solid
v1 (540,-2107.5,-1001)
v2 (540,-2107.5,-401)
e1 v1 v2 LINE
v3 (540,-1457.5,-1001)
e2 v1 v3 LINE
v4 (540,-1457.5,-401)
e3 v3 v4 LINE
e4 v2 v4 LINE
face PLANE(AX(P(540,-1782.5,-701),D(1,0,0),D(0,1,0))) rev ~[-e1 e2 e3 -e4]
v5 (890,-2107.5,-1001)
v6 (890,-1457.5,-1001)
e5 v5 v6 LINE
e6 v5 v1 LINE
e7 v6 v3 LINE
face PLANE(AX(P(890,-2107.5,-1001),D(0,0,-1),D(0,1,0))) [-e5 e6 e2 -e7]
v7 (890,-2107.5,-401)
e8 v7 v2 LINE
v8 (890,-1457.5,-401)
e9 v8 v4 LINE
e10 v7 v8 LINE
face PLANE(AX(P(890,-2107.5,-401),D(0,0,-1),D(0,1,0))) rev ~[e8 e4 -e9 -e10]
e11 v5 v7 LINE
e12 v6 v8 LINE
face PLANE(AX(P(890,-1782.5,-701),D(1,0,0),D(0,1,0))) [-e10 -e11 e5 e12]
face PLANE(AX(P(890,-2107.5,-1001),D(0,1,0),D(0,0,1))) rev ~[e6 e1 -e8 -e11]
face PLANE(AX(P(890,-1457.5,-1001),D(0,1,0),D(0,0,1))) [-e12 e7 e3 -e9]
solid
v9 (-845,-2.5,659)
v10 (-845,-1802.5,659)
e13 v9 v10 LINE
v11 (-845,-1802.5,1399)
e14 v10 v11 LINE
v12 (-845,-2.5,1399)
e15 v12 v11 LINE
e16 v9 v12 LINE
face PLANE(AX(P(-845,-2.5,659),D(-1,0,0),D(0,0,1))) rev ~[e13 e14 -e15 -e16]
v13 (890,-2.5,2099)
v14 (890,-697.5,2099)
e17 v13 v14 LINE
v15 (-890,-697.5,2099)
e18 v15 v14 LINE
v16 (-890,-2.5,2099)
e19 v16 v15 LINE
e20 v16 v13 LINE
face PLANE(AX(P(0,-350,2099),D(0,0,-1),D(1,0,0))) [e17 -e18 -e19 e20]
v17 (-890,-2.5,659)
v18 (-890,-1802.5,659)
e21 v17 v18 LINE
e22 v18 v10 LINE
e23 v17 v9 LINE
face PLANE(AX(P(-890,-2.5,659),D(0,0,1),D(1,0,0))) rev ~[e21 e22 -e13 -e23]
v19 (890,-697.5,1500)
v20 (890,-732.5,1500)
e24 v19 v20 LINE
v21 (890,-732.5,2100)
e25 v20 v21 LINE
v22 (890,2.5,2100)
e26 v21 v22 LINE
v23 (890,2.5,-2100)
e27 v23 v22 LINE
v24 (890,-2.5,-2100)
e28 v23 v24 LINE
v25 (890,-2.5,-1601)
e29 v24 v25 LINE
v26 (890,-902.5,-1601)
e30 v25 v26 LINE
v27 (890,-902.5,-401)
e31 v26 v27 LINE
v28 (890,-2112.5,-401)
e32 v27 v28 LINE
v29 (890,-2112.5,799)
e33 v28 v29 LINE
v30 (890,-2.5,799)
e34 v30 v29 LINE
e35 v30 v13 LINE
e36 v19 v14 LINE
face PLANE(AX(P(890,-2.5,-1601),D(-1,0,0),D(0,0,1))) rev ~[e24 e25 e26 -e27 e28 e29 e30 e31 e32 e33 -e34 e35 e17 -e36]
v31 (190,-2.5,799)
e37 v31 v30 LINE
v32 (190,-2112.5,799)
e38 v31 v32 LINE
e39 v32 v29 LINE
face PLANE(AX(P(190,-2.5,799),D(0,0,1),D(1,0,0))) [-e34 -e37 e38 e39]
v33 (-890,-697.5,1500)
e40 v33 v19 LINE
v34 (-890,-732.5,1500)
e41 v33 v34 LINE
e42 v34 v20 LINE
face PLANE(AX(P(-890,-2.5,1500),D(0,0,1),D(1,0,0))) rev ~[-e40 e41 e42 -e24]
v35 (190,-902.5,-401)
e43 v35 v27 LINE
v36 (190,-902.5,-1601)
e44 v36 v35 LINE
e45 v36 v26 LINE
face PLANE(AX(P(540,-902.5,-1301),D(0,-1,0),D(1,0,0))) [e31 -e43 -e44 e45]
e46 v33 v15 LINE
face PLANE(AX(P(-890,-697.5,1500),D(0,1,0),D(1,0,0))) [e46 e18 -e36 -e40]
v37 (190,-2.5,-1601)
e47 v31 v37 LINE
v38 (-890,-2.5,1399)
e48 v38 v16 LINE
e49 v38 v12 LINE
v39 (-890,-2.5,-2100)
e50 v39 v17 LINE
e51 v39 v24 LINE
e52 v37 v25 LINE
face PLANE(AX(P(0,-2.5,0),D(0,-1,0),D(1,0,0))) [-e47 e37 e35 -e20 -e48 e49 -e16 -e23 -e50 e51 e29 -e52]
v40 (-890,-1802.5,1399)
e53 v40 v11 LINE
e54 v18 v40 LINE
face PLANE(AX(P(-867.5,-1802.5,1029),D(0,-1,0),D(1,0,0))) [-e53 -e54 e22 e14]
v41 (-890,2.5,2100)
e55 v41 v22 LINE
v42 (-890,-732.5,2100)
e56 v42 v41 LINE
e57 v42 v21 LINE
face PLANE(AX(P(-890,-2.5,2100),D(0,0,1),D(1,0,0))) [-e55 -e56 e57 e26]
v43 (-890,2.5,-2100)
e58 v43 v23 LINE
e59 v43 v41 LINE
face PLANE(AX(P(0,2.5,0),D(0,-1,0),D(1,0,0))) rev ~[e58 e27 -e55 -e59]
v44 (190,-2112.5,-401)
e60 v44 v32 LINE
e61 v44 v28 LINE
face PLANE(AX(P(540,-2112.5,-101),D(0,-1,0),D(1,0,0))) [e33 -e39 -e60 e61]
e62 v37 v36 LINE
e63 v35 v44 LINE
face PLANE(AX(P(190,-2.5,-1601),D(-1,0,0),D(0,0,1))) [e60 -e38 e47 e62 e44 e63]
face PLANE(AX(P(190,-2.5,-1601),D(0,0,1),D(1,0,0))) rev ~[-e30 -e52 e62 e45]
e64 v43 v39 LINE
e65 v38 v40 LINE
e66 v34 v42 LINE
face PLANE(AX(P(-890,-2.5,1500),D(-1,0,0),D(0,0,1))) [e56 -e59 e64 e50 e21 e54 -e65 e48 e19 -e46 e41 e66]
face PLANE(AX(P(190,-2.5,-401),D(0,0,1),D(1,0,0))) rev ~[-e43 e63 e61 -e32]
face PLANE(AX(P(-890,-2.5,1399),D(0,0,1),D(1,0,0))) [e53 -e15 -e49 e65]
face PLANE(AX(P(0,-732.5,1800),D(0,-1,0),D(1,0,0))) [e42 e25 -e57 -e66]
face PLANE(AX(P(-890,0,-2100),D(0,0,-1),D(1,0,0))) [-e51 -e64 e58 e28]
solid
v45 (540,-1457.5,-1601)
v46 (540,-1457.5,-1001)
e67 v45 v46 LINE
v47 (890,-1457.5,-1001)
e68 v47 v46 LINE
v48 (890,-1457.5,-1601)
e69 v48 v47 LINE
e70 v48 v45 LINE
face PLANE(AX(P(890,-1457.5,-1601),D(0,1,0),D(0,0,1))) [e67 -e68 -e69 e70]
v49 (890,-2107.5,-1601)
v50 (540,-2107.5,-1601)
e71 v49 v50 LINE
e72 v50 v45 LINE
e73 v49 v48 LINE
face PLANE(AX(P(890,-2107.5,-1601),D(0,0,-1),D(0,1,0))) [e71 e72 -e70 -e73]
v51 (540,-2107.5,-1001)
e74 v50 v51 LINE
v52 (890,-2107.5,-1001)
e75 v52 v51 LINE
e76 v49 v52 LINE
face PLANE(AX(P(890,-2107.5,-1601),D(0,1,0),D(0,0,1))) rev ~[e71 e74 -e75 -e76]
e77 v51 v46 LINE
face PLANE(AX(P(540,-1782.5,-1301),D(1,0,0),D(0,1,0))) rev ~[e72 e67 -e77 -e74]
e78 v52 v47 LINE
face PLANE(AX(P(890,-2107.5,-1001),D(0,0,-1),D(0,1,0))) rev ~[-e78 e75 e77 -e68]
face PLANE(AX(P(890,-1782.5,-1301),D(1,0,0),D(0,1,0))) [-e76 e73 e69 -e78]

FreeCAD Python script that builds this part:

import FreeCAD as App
import Part
import Sketcher
from FreeCAD import Vector
Q = App.Units.Quantity

doc = App.newDocument("Part")
body = doc.addObject("PartDesign::Body", "Body")

# Sketch on XZ plane
sketch1 = doc.addObject("Sketcher::SketchObject", "Sketch")
body.addObject(sketch1)
sketch1.AttachmentSupport = (doc.XZ_Plane, [""])
sketch1.MapMode = "FlatFace"
sketch1.addGeometry([
    Part.LineSegment(Vector(-890, 2100, 0), Vector(-890, -2100, 0)),
    Part.LineSegment(Vector(-890, -2100, 0), Vector(890, -2100, 0)),
    Part.LineSegment(Vector(890, -2100, 0), Vector(890, 2100, 0)),
    Part.LineSegment(Vector(890, 2100, 0), Vector(-890, 2100, 0)),
], False)
sketch1.addConstraint([
    Sketcher.Constraint("Coincident", 0, 2, 1, 1),
    Sketcher.Constraint("Coincident", 1, 2, 2, 1),
    Sketcher.Constraint("Coincident", 2, 2, 3, 1),
    Sketcher.Constraint("Coincident", 3, 2, 0, 1),
    Sketcher.Constraint("Vertical", 0),
    Sketcher.Constraint("Horizontal", 1),
    Sketcher.Constraint("Vertical", 2),
    Sketcher.Constraint("Horizontal", 3),
    Sketcher.Constraint("Symmetric", 0, 2, 2, 2, -1, 1),
    Sketcher.Constraint("DistanceX", 1, 1, 1, 2, Q("1780 mm")),
    Sketcher.Constraint("DistanceY", 0, 2, 0, 1, Q("4200 mm")),
])
pad1 = doc.addObject("PartDesign::Pad", "Pad")
body.addObject(pad1)
pad1.Profile = sketch1
pad1.Length = 5
pad1.Midplane = True

# Sketch on XZ plane
sketch2 = doc.addObject("Sketcher::SketchObject", "Sketch001")
body.addObject(sketch2)
sketch2.AttachmentSupport = (doc.XZ_Plane, [""])
sketch2.MapMode = "FlatFace"
sketch2.AttachmentOffset = App.Placement(Vector(0, 0, 2.5), App.Rotation())
sketch2.addGeometry([
    Part.LineSegment(Vector(-890, 2100, 0), Vector(-890, 1500, 0)),
    Part.LineSegment(Vector(-890, 1500, 0), Vector(890, 1500, 0)),
    Part.LineSegment(Vector(890, 1500, 0), Vector(890, 2100, 0)),
    Part.LineSegment(Vector(890, 2100, 0), Vector(-890, 2100, 0)),
], False)
sketch2.addConstraint([
    Sketcher.Constraint("Coincident", 0, 2, 1, 1),
    Sketcher.Constraint("Coincident", 1, 2, 2, 1),
    Sketcher.Constraint("Coincident", 2, 2, 3, 1),
    Sketcher.Constraint("Coincident", 3, 2, 0, 1),
    Sketcher.Constraint("Vertical", 0),
    Sketcher.Constraint("Horizontal", 1),
    Sketcher.Constraint("Vertical", 2),
    Sketcher.Constraint("Horizontal", 3),
    Sketcher.Constraint("DistanceX", 1, 1, 1, 2, Q("1780 mm")),
    Sketcher.Constraint("DistanceY", 0, 2, 0, 1, Q("600 mm")),
    Sketcher.Constraint("DistanceX", 0, 2, -1, 1, Q("890 mm")),
    Sketcher.Constraint("DistanceY", -1, 1, 0, 2, Q("1500 mm")),
])
pad2 = doc.addObject("PartDesign::Pad", "Pad001")
body.addObject(pad2)
pad2.Profile = sketch2
pad2.Length = 730

# Sketch on XY plane
sketch3 = doc.addObject("Sketcher::SketchObject", "Sketch002")
body.addObject(sketch3)
sketch3.AttachmentSupport = (doc.XY_Plane, [""])
sketch3.MapMode = "FlatFace"
sketch3.AttachmentOffset = App.Placement(Vector(0, 0, 1500), App.Rotation())
sketch3.addGeometry([
    Part.LineSegment(Vector(-890, -697.5, 0), Vector(-890, -2.5, 0)),
    Part.LineSegment(Vector(-890, -2.5, 0), Vector(890, -2.5, 0)),
    Part.LineSegment(Vector(890, -2.5, 0), Vector(890, -697.5, 0)),
    Part.LineSegment(Vector(890, -697.5, 0), Vector(-890, -697.5, 0)),
], False)
sketch3.addConstraint([
    Sketcher.Constraint("Coincident", 0, 2, 1, 1),
    Sketcher.Constraint("Coincident", 1, 2, 2, 1),
    Sketcher.Constraint("Coincident", 2, 2, 3, 1),
    Sketcher.Constraint("Coincident", 3, 2, 0, 1),
    Sketcher.Constraint("Vertical", 0),
    Sketcher.Constraint("Horizontal", 1),
    Sketcher.Constraint("Vertical", 2),
    Sketcher.Constraint("Horizontal", 3),
    Sketcher.Constraint("DistanceX", 1, 1, 1, 2, Q("1780 mm")),
    Sketcher.Constraint("DistanceY", 0, 1, 0, 2, Q("695 mm")),
    Sketcher.Constraint("DistanceX", 0, 2, -1, 1, Q("890 mm")),
    Sketcher.Constraint("DistanceY", 0, 2, -1, 1, Q("2.5 mm")),
])
pocket1 = doc.addObject("PartDesign::Pocket", "Pocket")
body.addObject(pocket1)
pocket1.Profile = sketch3
pocket1.Length = 599
pocket1.Reversed = True

# Sketch on XZ plane
sketch4 = doc.addObject("Sketcher::SketchObject", "Sketch003")
body.addObject(sketch4)
sketch4.AttachmentSupport = (doc.XZ_Plane, [""])
sketch4.MapMode = "FlatFace"
sketch4.AttachmentOffset = App.Placement(Vector(0, 0, 2.5), App.Rotation())
sketch4.addGeometry([
    Part.LineSegment(Vector(190, 799, 0), Vector(190, 199, 0)),
    Part.LineSegment(Vector(190, 199, 0), Vector(890, 199, 0)),
    Part.LineSegment(Vector(890, 199, 0), Vector(890, 799, 0)),
    Part.LineSegment(Vector(890, 799, 0), Vector(190, 799, 0)),
], False)
sketch4.addConstraint([
    Sketcher.Constraint("Coincident", 0, 2, 1, 1),
    Sketcher.Constraint("Coincident", 1, 2, 2, 1),
    Sketcher.Constraint("Coincident", 2, 2, 3, 1),
    Sketcher.Constraint("Coincident", 3, 2, 0, 1),
    Sketcher.Constraint("Vertical", 0),
    Sketcher.Constraint("Horizontal", 1),
    Sketcher.Constraint("Vertical", 2),
    Sketcher.Constraint("Horizontal", 3),
    Sketcher.Constraint("DistanceX", 1, 1, 1, 2, Q("700 mm")),
    Sketcher.Constraint("DistanceY", 0, 2, 0, 1, Q("600 mm")),
    Sketcher.Constraint("DistanceX", -1, 1, 0, 2, Q("190 mm")),
    Sketcher.Constraint("DistanceY", -1, 1, 0, 2, Q("199 mm")),
])
pad3 = doc.addObject("PartDesign::Pad", "Pad002")
body.addObject(pad3)
pad3.Profile = sketch4
pad3.Length = 2110

# Sketch on XZ plane
sketch5 = doc.addObject("Sketcher::SketchObject", "Sketch004")
body.addObject(sketch5)
sketch5.AttachmentSupport = (doc.XZ_Plane, [""])
sketch5.MapMode = "FlatFace"
sketch5.AttachmentOffset = App.Placement(Vector(0, 0, 2.5), App.Rotation())
sketch5.addGeometry([
    Part.LineSegment(Vector(190, 199, 0), Vector(190, -401, 0)),
    Part.LineSegment(Vector(190, -401, 0), Vector(890, -401, 0)),
    Part.LineSegment(Vector(890, -401, 0), Vector(890, 199, 0)),
    Part.LineSegment(Vector(890, 199, 0), Vector(190, 199, 0)),
], False)
sketch5.addConstraint([
    Sketcher.Constraint("Coincident", 0, 2, 1, 1),
    Sketcher.Constraint("Coincident", 1, 2, 2, 1),
    Sketcher.Constraint("Coincident", 2, 2, 3, 1),
    Sketcher.Constraint("Coincident", 3, 2, 0, 1),
    Sketcher.Constraint("Vertical", 0),
    Sketcher.Constraint("Horizontal", 1),
    Sketcher.Constraint("Vertical", 2),
    Sketcher.Constraint("Horizontal", 3),
    Sketcher.Constraint("DistanceX", 1, 1, 1, 2, Q("700 mm")),
    Sketcher.Constraint("DistanceY", 0, 2, 0, 1, Q("600 mm")),
    Sketcher.Constraint("DistanceX", -1, 1, 0, 2, Q("190 mm")),
    Sketcher.Constraint("DistanceY", 0, 2, -1, 1, Q("401 mm")),
])
pad4 = doc.addObject("PartDesign::Pad", "Pad003")
body.addObject(pad4)
pad4.Profile = sketch5
pad4.Length = 2110

# Sketch on XZ plane
sketch6 = doc.addObject("Sketcher::SketchObject", "Sketch005")
body.addObject(sketch6)
sketch6.AttachmentSupport = (doc.XZ_Plane, [""])
sketch6.MapMode = "FlatFace"
sketch6.AttachmentOffset = App.Placement(Vector(0, 0, 2.5), App.Rotation())
sketch6.addGeometry([
    Part.LineSegment(Vector(190, -401, 0), Vector(190, -1001, 0)),
    Part.LineSegment(Vector(190, -1001, 0), Vector(890, -1001, 0)),
    Part.LineSegment(Vector(890, -1001, 0), Vector(890, -401, 0)),
    Part.LineSegment(Vector(890, -401, 0), Vector(190, -401, 0)),
], False)
sketch6.addConstraint([
    Sketcher.Constraint("Coincident", 0, 2, 1, 1),
    Sketcher.Constraint("Coincident", 1, 2, 2, 1),
    Sketcher.Constraint("Coincident", 2, 2, 3, 1),
    Sketcher.Constraint("Coincident", 3, 2, 0, 1),
    Sketcher.Constraint("Vertical", 0),
    Sketcher.Constraint("Horizontal", 1),
    Sketcher.Constraint("Vertical", 2),
    Sketcher.Constraint("Horizontal", 3),
    Sketcher.Constraint("DistanceX", 1, 1, 1, 2, Q("700 mm")),
    Sketcher.Constraint("DistanceY", 0, 2, 0, 1, Q("600 mm")),
    Sketcher.Constraint("DistanceX", -1, 1, 0, 2, Q("190 mm")),
    Sketcher.Constraint("DistanceY", 0, 2, -1, 1, Q("1001 mm")),
])
pad5 = doc.addObject("PartDesign::Pad", "Pad004")
body.addObject(pad5)
pad5.Profile = sketch6
pad5.Length = 900

# Sketch on XZ plane
sketch7 = doc.addObject("Sketcher::SketchObject", "Sketch006")
body.addObject(sketch7)
sketch7.AttachmentSupport = (doc.XZ_Plane, [""])
sketch7.MapMode = "FlatFace"
sketch7.AttachmentOffset = App.Placement(Vector(0, 0, 2.5), App.Rotation())
sketch7.addGeometry([
    Part.LineSegment(Vector(190, -1001, 0), Vector(190, -1601, 0)),
    Part.LineSegment(Vector(190, -1601, 0), Vector(890, -1601, 0)),
    Part.LineSegment(Vector(890, -1601, 0), Vector(890, -1001, 0)),
    Part.LineSegment(Vector(890, -1001, 0), Vector(190, -1001, 0)),
], False)
sketch7.addConstraint([
    Sketcher.Constraint("Coincident", 0, 2, 1, 1),
    Sketcher.Constraint("Coincident", 1, 2, 2, 1),
    Sketcher.Constraint("Coincident", 2, 2, 3, 1),
    Sketcher.Constraint("Coincident", 3, 2, 0, 1),
    Sketcher.Constraint("Vertical", 0),
    Sketcher.Constraint("Horizontal", 1),
    Sketcher.Constraint("Vertical", 2),
    Sketcher.Constraint("Horizontal", 3),
    Sketcher.Constraint("DistanceX", 1, 1, 1, 2, Q("700 mm")),
    Sketcher.Constraint("DistanceY", 0, 2, 0, 1, Q("600 mm")),
    Sketcher.Constraint("DistanceX", -1, 1, 0, 2, Q("190 mm")),
    Sketcher.Constraint("DistanceY", 0, 2, -1, 1, Q("1601 mm")),
])
pad6 = doc.addObject("PartDesign::Pad", "Pad005")
body.addObject(pad6)
pad6.Profile = sketch7
pad6.Length = 900

# Sketch on XZ plane
sketch8 = doc.addObject("Sketcher::SketchObject", "Sketch007")
body.addObject(sketch8)
sketch8.AttachmentSupport = (doc.XZ_Plane, [""])
sketch8.MapMode = "FlatFace"
sketch8.AttachmentOffset = App.Placement(Vector(0, 0, 2.5), App.Rotation())
sketch8.addGeometry([
    Part.LineSegment(Vector(-890, 1399, 0), Vector(-890, 659, 0)),
    Part.LineSegment(Vector(-890, 659, 0), Vector(-845, 659, 0)),
    Part.LineSegment(Vector(-845, 659, 0), Vector(-845, 1399, 0)),
    Part.LineSegment(Vector(-845, 1399, 0), Vector(-890, 1399, 0)),
], False)
sketch8.addConstraint([
    Sketcher.Constraint("Coincident", 0, 2, 1, 1),
    Sketcher.Constraint("Coincident", 1, 2, 2, 1),
    Sketcher.Constraint("Coincident", 2, 2, 3, 1),
    Sketcher.Constraint("Coincident", 3, 2, 0, 1),
    Sketcher.Constraint("Vertical", 0),
    Sketcher.Constraint("Horizontal", 1),
    Sketcher.Constraint("Vertical", 2),
    Sketcher.Constraint("Horizontal", 3),
    Sketcher.Constraint("DistanceX", 1, 1, 1, 2, Q("45 mm")),
    Sketcher.Constraint("DistanceY", 0, 2, 0, 1, Q("740 mm")),
    Sketcher.Constraint("DistanceX", 0, 2, -1, 1, Q("890 mm")),
    Sketcher.Constraint("DistanceY", -1, 1, 0, 2, Q("659 mm")),
])
pad7 = doc.addObject("PartDesign::Pad", "Pad006")
body.addObject(pad7)
pad7.Profile = sketch8
pad7.Length = 1800
body2 = doc.addObject("PartDesign::Body", "Body001")

# Sketch on YZ plane
sketch9 = doc.addObject("Sketcher::SketchObject", "Sketch008")
body2.addObject(sketch9)
sketch9.AttachmentSupport = (doc.getObject("YZ_Plane001"), [""])
sketch9.MapMode = "FlatFace"
sketch9.AttachmentOffset = App.Placement(Vector(0, 0, 890), App.Rotation())
sketch9.addGeometry([
    Part.LineSegment(Vector(-2107.5, -401, 0), Vector(-2107.5, -1001, 0)),
    Part.LineSegment(Vector(-2107.5, -1001, 0), Vector(-1457.5, -1001, 0)),
    Part.LineSegment(Vector(-1457.5, -1001, 0), Vector(-1457.5, -401, 0)),
    Part.LineSegment(Vector(-1457.5, -401, 0), Vector(-2107.5, -401, 0)),
], False)
sketch9.addConstraint([
    Sketcher.Constraint("Coincident", 0, 2, 1, 1),
    Sketcher.Constraint("Coincident", 1, 2, 2, 1),
    Sketcher.Constraint("Coincident", 2, 2, 3, 1),
    Sketcher.Constraint("Coincident", 3, 2, 0, 1),
    Sketcher.Constraint("Vertical", 0),
    Sketcher.Constraint("Horizontal", 1),
    Sketcher.Constraint("Vertical", 2),
    Sketcher.Constraint("Horizontal", 3),
    Sketcher.Constraint("DistanceX", 1, 1, 1, 2, Q("650 mm")),
    Sketcher.Constraint("DistanceY", 0, 2, 0, 1, Q("600 mm")),
    Sketcher.Constraint("DistanceY", 0, 2, -1, 1, Q("1001 mm")),
    Sketcher.Constraint("DistanceX", 0, 2, -1, 1, Q("2107.5 mm")),
])
pad8 = doc.addObject("PartDesign::Pad", "Pad007")
body2.addObject(pad8)
pad8.Profile = sketch9
pad8.Length = 350
pad8.Reversed = True
body3 = doc.addObject("PartDesign::Body", "Body002")

# Sketch on YZ plane
sketch10 = doc.addObject("Sketcher::SketchObject", "Sketch009")
body3.addObject(sketch10)
sketch10.AttachmentSupport = (doc.getObject("YZ_Plane002"), [""])
sketch10.MapMode = "FlatFace"
sketch10.AttachmentOffset = App.Placement(Vector(0, 0, 890), App.Rotation())
sketch10.addGeometry([
    Part.LineSegment(Vector(-2107.5, -1001, 0), Vector(-2107.5, -1601, 0)),
    Part.LineSegment(Vector(-2107.5, -1601, 0), Vector(-1457.5, -1601, 0)),
    Part.LineSegment(Vector(-1457.5, -1601, 0), Vector(-1457.5, -1001, 0)),
    Part.LineSegment(Vector(-1457.5, -1001, 0), Vector(-2107.5, -1001, 0)),
], False)
sketch10.addConstraint([
    Sketcher.Constraint("Coincident", 0, 2, 1, 1),
    Sketcher.Constraint("Coincident", 1, 2, 2, 1),
    Sketcher.Constraint("Coincident", 2, 2, 3, 1),
    Sketcher.Constraint("Coincident", 3, 2, 0, 1),
    Sketcher.Constraint("Vertical", 0),
    Sketcher.Constraint("Horizontal", 1),
    Sketcher.Constraint("Vertical", 2),
    Sketcher.Constraint("Horizontal", 3),
    Sketcher.Constraint("DistanceX", 1, 1, 1, 2, Q("650 mm")),
    Sketcher.Constraint("DistanceY", 0, 2, 0, 1, Q("600 mm")),
    Sketcher.Constraint("DistanceY", 0, 2, -1, 1, Q("1601 mm")),
    Sketcher.Constraint("DistanceX", 0, 2, -1, 1, Q("2107.5 mm")),
])
pad9 = doc.addObject("PartDesign::Pad", "Pad008")
body3.addObject(pad9)
pad9.Profile = sketch10
pad9.Length = 350
pad9.Reversed = True

doc.recompute()
